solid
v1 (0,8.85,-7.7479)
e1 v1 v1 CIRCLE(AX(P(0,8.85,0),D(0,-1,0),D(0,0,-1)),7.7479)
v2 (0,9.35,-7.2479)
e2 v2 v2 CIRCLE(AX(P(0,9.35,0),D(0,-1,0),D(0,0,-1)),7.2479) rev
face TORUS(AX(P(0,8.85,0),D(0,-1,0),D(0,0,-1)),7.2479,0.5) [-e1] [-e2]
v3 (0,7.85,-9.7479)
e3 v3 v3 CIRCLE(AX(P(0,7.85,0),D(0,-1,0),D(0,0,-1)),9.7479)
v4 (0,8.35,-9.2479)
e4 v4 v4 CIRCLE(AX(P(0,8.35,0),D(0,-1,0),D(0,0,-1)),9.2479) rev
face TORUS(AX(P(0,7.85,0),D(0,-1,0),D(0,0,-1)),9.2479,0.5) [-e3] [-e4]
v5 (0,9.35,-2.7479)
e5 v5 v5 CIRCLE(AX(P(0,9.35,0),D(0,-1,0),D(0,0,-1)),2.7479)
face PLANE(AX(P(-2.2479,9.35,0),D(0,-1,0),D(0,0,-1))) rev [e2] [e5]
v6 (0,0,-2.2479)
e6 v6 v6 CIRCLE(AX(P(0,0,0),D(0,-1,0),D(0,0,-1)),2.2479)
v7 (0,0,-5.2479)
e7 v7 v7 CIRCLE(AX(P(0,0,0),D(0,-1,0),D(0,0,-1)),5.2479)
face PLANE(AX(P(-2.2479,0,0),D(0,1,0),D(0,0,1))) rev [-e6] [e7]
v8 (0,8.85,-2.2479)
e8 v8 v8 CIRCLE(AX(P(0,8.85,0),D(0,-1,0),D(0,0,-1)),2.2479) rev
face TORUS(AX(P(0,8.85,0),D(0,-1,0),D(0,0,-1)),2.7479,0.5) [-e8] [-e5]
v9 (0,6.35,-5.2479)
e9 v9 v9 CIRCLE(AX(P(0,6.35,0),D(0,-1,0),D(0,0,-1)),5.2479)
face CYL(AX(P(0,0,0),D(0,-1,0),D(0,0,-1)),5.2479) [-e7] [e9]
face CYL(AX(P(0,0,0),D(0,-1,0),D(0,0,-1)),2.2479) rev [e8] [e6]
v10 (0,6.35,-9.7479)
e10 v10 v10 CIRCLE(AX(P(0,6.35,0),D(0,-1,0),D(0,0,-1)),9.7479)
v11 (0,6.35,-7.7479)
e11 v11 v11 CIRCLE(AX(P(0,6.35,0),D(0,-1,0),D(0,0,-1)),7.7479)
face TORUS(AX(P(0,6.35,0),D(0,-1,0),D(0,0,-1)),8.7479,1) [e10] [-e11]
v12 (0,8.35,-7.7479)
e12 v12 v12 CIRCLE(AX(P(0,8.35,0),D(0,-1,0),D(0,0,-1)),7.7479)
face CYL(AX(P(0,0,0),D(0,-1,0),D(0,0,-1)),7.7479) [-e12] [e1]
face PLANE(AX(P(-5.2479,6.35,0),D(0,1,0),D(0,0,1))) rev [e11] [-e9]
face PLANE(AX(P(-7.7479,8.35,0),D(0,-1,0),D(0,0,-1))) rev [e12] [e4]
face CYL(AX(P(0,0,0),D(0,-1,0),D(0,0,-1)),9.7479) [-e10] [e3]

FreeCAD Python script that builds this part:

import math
import FreeCAD as App
import Part
import Sketcher

V = App.Vector


def edges_at(feature, points):
    """Names of the edges that pass closest to the given points."""
    edges = feature.Shape.Edges
    near = lambda p: min(range(len(edges)), key=lambda i: edges[i].distToShape(Part.Vertex(*p))[0])
    return sorted({f"Edge{near(p) + 1}" for p in points})

doc = App.newDocument("Part")
body = doc.addObject("PartDesign::Body", "Body")

# Sketch on XY plane
sketch1 = body.newObject("Sketcher::SketchObject", "Sketch")
sketch1.AttachmentSupport = (doc.getObject("XY_Plane"), [""])
sketch1.MapMode = "FlatFace"
sketch1.addGeometry(Part.LineSegment(V(-2.2479, 0, 0), V(-2.2479, 9.35, 0)), False)
sketch1.addGeometry(Part.LineSegment(V(-2.2479, 9.35, 0), V(-7.7479, 9.35, 0)), False)
sketch1.addGeometry(Part.LineSegment(V(-7.7479, 9.35, 0), V(-7.7479, 8.35, 0)), False)
sketch1.addGeometry(Part.LineSegment(V(-7.7479, 8.35, 0), V(-9.7479, 8.35, 0)), False)
sketch1.addGeometry(Part.LineSegment(V(-9.7479, 8.35, 0), V(-9.7479, 6.35, 0)), False)
sketch1.addGeometry(Part.ArcOfCircle(Part.Circle(V(-8.7479, 6.35, 0), V(0, 0, 1), 1), math.radians(180), math.radians(360)), False)
sketch1.addGeometry(Part.LineSegment(V(-7.7479, 6.35, 0), V(-5.2479, 6.35, 0)), False)
sketch1.addGeometry(Part.LineSegment(V(-5.2479, 6.35, 0), V(-5.2479, 0, 0)), False)
sketch1.addGeometry(Part.LineSegment(V(-5.2479, 0, 0), V(-2.2479, 0, 0)), False)
sketch1.addConstraint(Sketcher.Constraint("Coincident", 0, 2, 1, 1))
sketch1.addConstraint(Sketcher.Constraint("Coincident", 1, 2, 2, 1))
sketch1.addConstraint(Sketcher.Constraint("Coincident", 2, 2, 3, 1))
sketch1.addConstraint(Sketcher.Constraint("Coincident", 3, 2, 4, 1))
sketch1.addConstraint(Sketcher.Constraint("Tangent", 4, 2, 5, 1))
sketch1.addConstraint(Sketcher.Constraint("Coincident", 5, 2, 6, 1))
sketch1.addConstraint(Sketcher.Constraint("Coincident", 6, 2, 7, 1))
sketch1.addConstraint(Sketcher.Constraint("Coincident", 7, 2, 8, 1))
sketch1.addConstraint(Sketcher.Constraint("Coincident", 8, 2, 0, 1))
sketch1.addConstraint(Sketcher.Constraint("Vertical", 0))
sketch1.addConstraint(Sketcher.Constraint("Horizontal", 1))
sketch1.addConstraint(Sketcher.Constraint("Vertical", 2))
sketch1.addConstraint(Sketcher.Constraint("Horizontal", 3))
sketch1.addConstraint(Sketcher.Constraint("Vertical", 4))
sketch1.addConstraint(Sketcher.Constraint("Horizontal", 6))
sketch1.addConstraint(Sketcher.Constraint("Vertical", 7))
sketch1.addConstraint(Sketcher.Constraint("Horizontal", 8))
sketch1.addConstraint(Sketcher.Constraint("PointOnObject", 7, 2, -1))
sketch1.addConstraint(Sketcher.Constraint("Horizontal", 4, 2, 5, 2))
sketch1.addConstraint(Sketcher.Constraint("Vertical", 2, 2, 5, 2))
sketch1.addConstraint(Sketcher.Constraint("Equal", 3, 4))
sketch1.addConstraint(Sketcher.Constraint("Radius", 5, 1.0))
sketch1.addConstraint(Sketcher.Constraint("DistanceX", 8, 1, 8, 2, 3.0))
sketch1.addConstraint(Sketcher.Constraint("DistanceY", 2, 2, 2, 1, 1.0))
sketch1.addConstraint(Sketcher.Constraint("DistanceX", 1, 2, 1, 1, 5.5))
sketch1.addConstraint(Sketcher.Constraint("DistanceY", 0, 1, 0, 2, 9.35))
sketch1.addConstraint(Sketcher.Constraint("DistanceX", 5, 3, -1, 1, 8.7479))
revolution = body.newObject("PartDesign::Revolution", "Revolution")
revolution.Profile = sketch1
revolution.ReferenceAxis = (sketch1, ["V_Axis"])
revolution.Angle = 360
doc.recompute()

fillet = body.newObject("PartDesign::Fillet", "Fillet")
fillet.Base = (revolution, edges_at(revolution, [(7.748, 9.35, 0), (2.248, 9.35, 0), (9.748, 8.35, 0)]))
fillet.Radius = 0.5

doc.recompute()
